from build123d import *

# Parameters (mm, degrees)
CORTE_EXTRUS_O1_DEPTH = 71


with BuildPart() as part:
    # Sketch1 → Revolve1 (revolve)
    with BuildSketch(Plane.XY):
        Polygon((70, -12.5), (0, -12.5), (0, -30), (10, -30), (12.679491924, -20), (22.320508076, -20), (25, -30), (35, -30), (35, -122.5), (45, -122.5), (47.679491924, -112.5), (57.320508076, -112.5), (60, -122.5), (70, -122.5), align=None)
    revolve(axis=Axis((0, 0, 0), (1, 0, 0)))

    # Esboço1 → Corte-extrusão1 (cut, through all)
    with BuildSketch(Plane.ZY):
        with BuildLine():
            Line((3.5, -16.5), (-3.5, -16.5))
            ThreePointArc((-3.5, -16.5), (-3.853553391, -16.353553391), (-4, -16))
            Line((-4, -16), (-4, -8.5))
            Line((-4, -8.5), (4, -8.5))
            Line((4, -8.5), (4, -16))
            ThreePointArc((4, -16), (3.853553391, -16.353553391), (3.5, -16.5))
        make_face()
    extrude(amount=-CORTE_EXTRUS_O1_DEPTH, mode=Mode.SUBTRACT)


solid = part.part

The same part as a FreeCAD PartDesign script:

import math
import FreeCAD as App
import Part
import Sketcher

V = App.Vector
Q = App.Units.Quantity

doc = App.newDocument("Part")
body = doc.addObject("PartDesign::Body", "Body")

# Sketch on XY plane
sketch1 = body.newObject("Sketcher::SketchObject", "Sketch")
sketch1.AttachmentSupport = (doc.getObject("XY_Plane"), [""])
sketch1.MapMode = "FlatFace"
sketch1.addGeometry(Part.LineSegment(V(70, -12, 0), V(0, -12, 0)), False)
sketch1.addGeometry(Part.LineSegment(V(0, -12, 0), V(0, -30, 0)), False)
sketch1.addGeometry(Part.LineSegment(V(0, -30, 0), V(10, -30, 0)), False)
sketch1.addGeometry(Part.LineSegment(V(10, -30, 0), V(13, -20, 0)), False)
sketch1.addGeometry(Part.LineSegment(V(13, -20, 0), V(22, -20, 0)), False)
sketch1.addGeometry(Part.LineSegment(V(22, -20, 0), V(25, -30, 0)), False)
sketch1.addGeometry(Part.LineSegment(V(25, -30, 0), V(35, -30, 0)), False)
sketch1.addGeometry(Part.LineSegment(V(35, -30, 0), V(35, -122, 0)), False)
sketch1.addGeometry(Part.LineSegment(V(35, -122, 0), V(45, -122, 0)), False)
sketch1.addGeometry(Part.LineSegment(V(45, -122, 0), V(48, -112, 0)), False)
sketch1.addGeometry(Part.LineSegment(V(48, -112, 0), V(57, -112, 0)), False)
sketch1.addGeometry(Part.LineSegment(V(57, -112, 0), V(60, -122, 0)), False)
sketch1.addGeometry(Part.LineSegment(V(60, -122, 0), V(70, -122, 0)), False)
sketch1.addGeometry(Part.LineSegment(V(70, -122, 0), V(70, -12, 0)), False)
sketch1.addConstraint(Sketcher.Constraint("Coincident", 0, 2, 1, 1))
sketch1.addConstraint(Sketcher.Constraint("Coincident", 1, 2, 2, 1))
sketch1.addConstraint(Sketcher.Constraint("Coincident", 2, 2, 3, 1))
sketch1.addConstraint(Sketcher.Constraint("Coincident", 3, 2, 4, 1))
sketch1.addConstraint(Sketcher.Constraint("Coincident", 4, 2, 5, 1))
sketch1.addConstraint(Sketcher.Constraint("Coincident", 5, 2, 6, 1))
sketch1.addConstraint(Sketcher.Constraint("Coincident", 6, 2, 7, 1))
sketch1.addConstraint(Sketcher.Constraint("Coincident", 7, 2, 8, 1))
sketch1.addConstraint(Sketcher.Constraint("Coincident", 8, 2, 9, 1))
sketch1.addConstraint(Sketcher.Constraint("Coincident", 9, 2, 10, 1))
sketch1.addConstraint(Sketcher.Constraint("Coincident", 10, 2, 11, 1))
sketch1.addConstraint(Sketcher.Constraint("Coincident", 11, 2, 12, 1))
sketch1.addConstraint(Sketcher.Constraint("Coincident", 12, 2, 13, 1))
sketch1.addConstraint(Sketcher.Constraint("Coincident", 13, 2, 0, 1))
sketch1.addConstraint(Sketcher.Constraint("Horizontal", 0))
sketch1.addConstraint(Sketcher.Constraint("Vertical", 1))
sketch1.addConstraint(Sketcher.Constraint("Horizontal", 2))
sketch1.addConstraint(Sketcher.Constraint("Horizontal", 4))
sketch1.addConstraint(Sketcher.Constraint("Horizontal", 6))
sketch1.addConstraint(Sketcher.Constraint("Vertical", 7))
sketch1.addConstraint(Sketcher.Constraint("Horizontal", 8))
sketch1.addConstraint(Sketcher.Constraint("Horizontal", 10))
sketch1.addConstraint(Sketcher.Constraint("Horizontal", 12))
sketch1.addConstraint(Sketcher.Constraint("Vertical", 13))
sketch1.addConstraint(Sketcher.Constraint("PointOnObject", 0, 2, -2))
sketch1.addConstraint(Sketcher.Constraint("Parallel", 3, 9))
sketch1.addConstraint(Sketcher.Constraint("Parallel", 5, 11))
sketch1.addConstraint(Sketcher.Constraint("Horizontal", 2, 2, 5, 2))
sketch1.addConstraint(Sketcher.Constraint("Horizontal", 8, 2, 11, 2))
sketch1.addConstraint(Sketcher.Constraint("Equal", 2, 6))
sketch1.addConstraint(Sketcher.Constraint("Equal", 6, 8))
sketch1.addConstraint(Sketcher.Constraint("Equal", 4, 10))
sketch1.addConstraint(Sketcher.Constraint("Equal", 8, 12))
sketch1.addConstraint(Sketcher.Constraint("Equal", 3, 5))
sketch1.addConstraint(Sketcher.Constraint("Equal", 5, 9))
sketch1.addConstraint(Sketcher.Constraint("DistanceX", 0, 2, 0, 1, Q("70 mm")))
sketch1.addConstraint(Sketcher.Constraint("DistanceX", 2, 1, 2, 2, Q("10 mm")))
sketch1.addConstraint(Sketcher.Constraint("DistanceY", 13, 1, 13, 2, Q("110 mm")))
sketch1.addConstraint(Sketcher.Constraint("Angle", 3, Q("75 deg")))
sketch1.addConstraint(Sketcher.Constraint("DistanceY", 1, 2, 1, 1, Q("17.5 mm")))
sketch1.addConstraint(Sketcher.Constraint("DistanceY", 1, 2, -1, 1, Q("30 mm")))
sketch1.addConstraint(Sketcher.Constraint("DistanceY", 3, 2, -1, 1, Q("20 mm")))
revolution = body.newObject("PartDesign::Revolution", "Revolution")
revolution.Profile = sketch1
revolution.ReferenceAxis = (sketch1, ["H_Axis"])
revolution.Angle = 360

# Sketch on YZ plane
sketch2 = body.newObject("Sketcher::SketchObject", "Sketch001")
sketch2.AttachmentSupport = (doc.getObject("YZ_Plane"), [""])
sketch2.MapMode = "FlatFace"
sketch2.addGeometry(Part.LineSegment(V(-16.5, -3.5, 0), V(-16.5, 3.5, 0)), False)
sketch2.addGeometry(Part.ArcOfCircle(Part.Circle(V(-16, 3.5, 0), V(0, 0, 1), 0.5), math.radians(90), math.radians(180)), False)
sketch2.addGeometry(Part.LineSegment(V(-16, 4, 0), V(-8.5, 4, 0)), False)
sketch2.addGeometry(Part.LineSegment(V(-8.5, 4, 0), V(-8.5, -4, 0)), False)
sketch2.addGeometry(Part.LineSegment(V(-8.5, -4, 0), V(-16, -4, 0)), False)
sketch2.addGeometry(Part.ArcOfCircle(Part.Circle(V(-16, -3.5, 0), V(0, 0, 1), 0.5), math.radians(180), math.radians(270)), False)
sketch2.addConstraint(Sketcher.Constraint("Tangent", 0, 2, 1, 2))
sketch2.addConstraint(Sketcher.Constraint("Tangent", 1, 1, 2, 1))
sketch2.addConstraint(Sketcher.Constraint("Coincident", 2, 2, 3, 1))
sketch2.addConstraint(Sketcher.Constraint("Coincident", 3, 2, 4, 1))
sketch2.addConstraint(Sketcher.Constraint("Tangent", 4, 2, 5, 2))
sketch2.addConstraint(Sketcher.Constraint("Tangent", 5, 1, 0, 1))
sketch2.addConstraint(Sketcher.Constraint("Vertical", 0))
sketch2.addConstraint(Sketcher.Constraint("Horizontal", 2))
sketch2.addConstraint(Sketcher.Constraint("Vertical", 3))
sketch2.addConstraint(Sketcher.Constraint("Horizontal", 4))
sketch2.addConstraint(Sketcher.Constraint("Equal", 1, 5))
sketch2.addConstraint(Sketcher.Constraint("Radius", 1, Q("0.5 mm")))
sketch2.addConstraint(Sketcher.Constraint("DistanceY", 0, 1, 0, 2, Q("7 mm")))
sketch2.addConstraint(Sketcher.Constraint("DistanceX", 2, 1, 2, 2, Q("7.5 mm")))
sketch2.addConstraint(Sketcher.Constraint("DistanceX", 1, 3, -1, 1, Q("16 mm")))
sketch2.addConstraint(Sketcher.Constraint("DistanceY", -1, 1, 1, 1, Q("4 mm")))
pocket1 = body.newObject("PartDesign::Pocket", "Pocket")
pocket1.Profile = sketch2
pocket1.Type = "ThroughAll"
pocket1.Reversed = True

doc.recompute()
